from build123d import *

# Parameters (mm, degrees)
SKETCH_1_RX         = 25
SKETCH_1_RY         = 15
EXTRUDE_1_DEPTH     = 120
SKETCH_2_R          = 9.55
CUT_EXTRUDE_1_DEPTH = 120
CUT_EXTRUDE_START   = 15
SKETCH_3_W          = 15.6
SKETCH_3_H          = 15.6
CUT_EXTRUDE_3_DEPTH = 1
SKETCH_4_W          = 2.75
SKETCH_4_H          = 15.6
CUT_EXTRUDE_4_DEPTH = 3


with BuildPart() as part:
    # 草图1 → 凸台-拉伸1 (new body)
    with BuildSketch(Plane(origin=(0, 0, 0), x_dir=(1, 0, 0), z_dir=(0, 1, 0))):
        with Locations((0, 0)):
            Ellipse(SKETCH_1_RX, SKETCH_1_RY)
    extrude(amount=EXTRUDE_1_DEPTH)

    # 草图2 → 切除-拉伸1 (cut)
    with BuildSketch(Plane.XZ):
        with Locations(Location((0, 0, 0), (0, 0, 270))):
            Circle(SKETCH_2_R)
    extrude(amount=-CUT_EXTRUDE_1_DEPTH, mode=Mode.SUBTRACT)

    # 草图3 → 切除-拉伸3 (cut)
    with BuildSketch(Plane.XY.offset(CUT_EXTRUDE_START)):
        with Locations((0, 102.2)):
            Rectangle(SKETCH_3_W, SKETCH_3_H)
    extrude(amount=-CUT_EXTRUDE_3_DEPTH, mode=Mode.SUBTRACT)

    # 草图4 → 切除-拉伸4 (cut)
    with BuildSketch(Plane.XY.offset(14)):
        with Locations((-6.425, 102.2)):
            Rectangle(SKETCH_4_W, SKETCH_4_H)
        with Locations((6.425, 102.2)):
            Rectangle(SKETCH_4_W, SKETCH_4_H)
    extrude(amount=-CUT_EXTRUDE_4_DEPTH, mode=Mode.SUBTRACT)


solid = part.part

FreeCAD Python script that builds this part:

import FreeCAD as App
import Part
import Sketcher
Q = App.Units.Quantity

doc = App.newDocument("Part")
body = doc.addObject("PartDesign::Body", "Body")

# Sketch on XZ plane
sketch1 = body.newObject("Sketcher::SketchObject", "Sketch")
sketch1.AttachmentSupport = (doc.getObject("XZ_Plane"), [""])
sketch1.MapMode = "FlatFace"
sketch1.addGeometry(Part.Ellipse(App.Vector(25, 0, 0), App.Vector(0, 15, 0), App.Vector(0, 0, 0)), False)
sketch1.addConstraint(Sketcher.Constraint("Block", 0))
pad1 = body.newObject("PartDesign::Pad", "Pad")
pad1.Profile = sketch1
pad1.Length = 120
pad1.Reversed = True

# Sketch on XZ plane
sketch2 = body.newObject("Sketcher::SketchObject", "Sketch001")
sketch2.AttachmentSupport = (doc.getObject("XZ_Plane"), [""])
sketch2.MapMode = "FlatFace"
sketch2.addGeometry(Part.Circle(App.Vector(0, 0, 0), App.Vector(0, 0, 1), 10), False)
sketch2.addConstraint([
    Sketcher.Constraint("Coincident", 0, 3, -1, 1),
    Sketcher.Constraint("Diameter", 0, Q("19.1 mm")),
])
pocket1 = body.newObject("PartDesign::Pocket", "Pocket")
pocket1.Profile = sketch2
pocket1.Length = 120

# Sketch on XY plane
sketch3 = body.newObject("Sketcher::SketchObject", "Sketch002")
sketch3.AttachmentSupport = (doc.getObject("XY_Plane"), [""])
sketch3.MapMode = "FlatFace"
sketch3.AttachmentOffset = App.Placement(App.Vector(0, 0, 15), App.Rotation())
sketch3.addGeometry([
    Part.LineSegment(App.Vector(-8, 110, 0), App.Vector(-8, 94, 0)),
    Part.LineSegment(App.Vector(-8, 94, 0), App.Vector(8, 94, 0)),
    Part.LineSegment(App.Vector(8, 94, 0), App.Vector(8, 110, 0)),
    Part.LineSegment(App.Vector(8, 110, 0), App.Vector(-8, 110, 0)),
], False)
sketch3.addConstraint([
    Sketcher.Constraint("Coincident", 0, 2, 1, 1),
    Sketcher.Constraint("Coincident", 1, 2, 2, 1),
    Sketcher.Constraint("Coincident", 2, 2, 3, 1),
    Sketcher.Constraint("Coincident", 3, 2, 0, 1),
    Sketcher.Constraint("Vertical", 0),
    Sketcher.Constraint("Horizontal", 1),
    Sketcher.Constraint("Vertical", 2),
    Sketcher.Constraint("Horizontal", 3),
    Sketcher.Constraint("Equal", 3, 0),
    Sketcher.Constraint("DistanceX", 1, 1, 1, 2, Q("15.6 mm")),
    Sketcher.Constraint("DistanceY", -1, 1, 2, 2, Q("110 mm")),
    Sketcher.Constraint("DistanceX", 0, 2, -1, 1, Q("7.8 mm")),
])
pocket2 = body.newObject("PartDesign::Pocket", "Pocket001")
pocket2.Profile = sketch3
pocket2.Length = 1

# Sketch on XY plane
sketch4 = body.newObject("Sketcher::SketchObject", "Sketch003")
sketch4.AttachmentSupport = (doc.getObject("XY_Plane"), [""])
sketch4.MapMode = "FlatFace"
sketch4.AttachmentOffset = App.Placement(App.Vector(0, 0, 14), App.Rotation())
sketch4.addGeometry([
    Part.LineSegment(App.Vector(-7.8, 110, 0), App.Vector(-7.8, 94.4, 0)),  # 0
    Part.LineSegment(App.Vector(-7.8, 94.4, 0), App.Vector(-5, 94.4, 0)),  # 1
    Part.LineSegment(App.Vector(-5, 94.4, 0), App.Vector(-5, 110, 0)),  # 2
    Part.LineSegment(App.Vector(-5, 110, 0), App.Vector(-7.8, 110, 0)),  # 3
    Part.LineSegment(App.Vector(5, 110, 0), App.Vector(5, 94.4, 0)),  # 4
    Part.LineSegment(App.Vector(5, 94.4, 0), App.Vector(7.8, 94.4, 0)),  # 5
    Part.LineSegment(App.Vector(7.8, 94.4, 0), App.Vector(7.8, 110, 0)),  # 6
    Part.LineSegment(App.Vector(7.8, 110, 0), App.Vector(5, 110, 0)),  # 7
], False)
sketch4.addConstraint([
    Sketcher.Constraint("Coincident", 0, 2, 1, 1),
    Sketcher.Constraint("Coincident", 1, 2, 2, 1),
    Sketcher.Constraint("Coincident", 2, 2, 3, 1),
    Sketcher.Constraint("Coincident", 3, 2, 0, 1),
    Sketcher.Constraint("Coincident", 4, 2, 5, 1),
    Sketcher.Constraint("Coincident", 5, 2, 6, 1),
    Sketcher.Constraint("Coincident", 6, 2, 7, 1),
    Sketcher.Constraint("Coincident", 7, 2, 4, 1),
    Sketcher.Constraint("Vertical", 0),
    Sketcher.Constraint("Horizontal", 1),
    Sketcher.Constraint("Vertical", 2),
    Sketcher.Constraint("Horizontal", 3),
    Sketcher.Constraint("Vertical", 4),
    Sketcher.Constraint("Horizontal", 5),
    Sketcher.Constraint("Vertical", 6),
    Sketcher.Constraint("Horizontal", 7),
    Sketcher.Constraint("Symmetric", 1, 2, 4, 2, -2),
    Sketcher.Constraint("Symmetric", 3, 2, 6, 2, -2),
    Sketcher.Constraint("DistanceY", 0, 2, 0, 1, Q("15.6 mm")),
    Sketcher.Constraint("DistanceY", -1, 1, 2, 2, Q("110 mm")),
    Sketcher.Constraint("DistanceX", 1, 1, 1, 2, Q("2.75 mm")),
    Sketcher.Constraint("DistanceX", 0, 2, -1, 1, Q("7.8 mm")),
])
pocket3 = body.newObject("PartDesign::Pocket", "Pocket002")
pocket3.Profile = sketch4
pocket3.Length = 3

doc.recompute()
